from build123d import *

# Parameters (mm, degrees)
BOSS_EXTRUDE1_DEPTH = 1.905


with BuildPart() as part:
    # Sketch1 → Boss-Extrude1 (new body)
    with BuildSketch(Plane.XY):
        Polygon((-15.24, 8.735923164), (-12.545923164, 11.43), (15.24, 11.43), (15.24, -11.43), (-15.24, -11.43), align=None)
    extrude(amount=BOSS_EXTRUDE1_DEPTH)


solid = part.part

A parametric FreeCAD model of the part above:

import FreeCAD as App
import Part
import Sketcher

V = App.Vector
Q = App.Units.Quantity

doc = App.newDocument("Part")
body = doc.addObject("PartDesign::Body", "Body")

sketch1 = body.newObject("Sketcher::SketchObject", "Sketch")
sketch1.AttachmentSupport = (doc.getObject("XY_Plane"), [""])
sketch1.MapMode = "FlatFace"
sketch1.addGeometry(Part.LineSegment(V(-12.5, 11.4, 0), V(-15.2, 8.7, 0)), False)
sketch1.addGeometry(Part.LineSegment(V(-15.2, 8.7, 0), V(-15.2, -11.4, 0)), False)
sketch1.addGeometry(Part.LineSegment(V(-15.2, -11.4, 0), V(15.2, -11.4, 0)), False)
sketch1.addGeometry(Part.LineSegment(V(15.2, -11.4, 0), V(15.2, 11.4, 0)), False)
sketch1.addGeometry(Part.LineSegment(V(15.2, 11.4, 0), V(-12.5, 11.4, 0)), False)
sketch1.addConstraint(Sketcher.Constraint("Coincident", 0, 2, 1, 1))
sketch1.addConstraint(Sketcher.Constraint("Coincident", 1, 2, 2, 1))
sketch1.addConstraint(Sketcher.Constraint("Coincident", 2, 2, 3, 1))
sketch1.addConstraint(Sketcher.Constraint("Coincident", 3, 2, 4, 1))
sketch1.addConstraint(Sketcher.Constraint("Coincident", 4, 2, 0, 1))
sketch1.addConstraint(Sketcher.Constraint("Vertical", 1))
sketch1.addConstraint(Sketcher.Constraint("Horizontal", 2))
sketch1.addConstraint(Sketcher.Constraint("Vertical", 3))
sketch1.addConstraint(Sketcher.Constraint("Horizontal", 4))
sketch1.addConstraint(Sketcher.Constraint("Symmetric", 1, 2, 3, 2, -1, 1))
sketch1.addConstraint(Sketcher.Constraint("DistanceX", 2, 1, 2, 2, Q("1.2 in")))
sketch1.addConstraint(Sketcher.Constraint("DistanceY", 3, 1, 3, 2, Q("0.9 in")))
sketch1.addConstraint(Sketcher.Constraint("Angle", 0, Q("-135 deg")))
sketch1.addConstraint(Sketcher.Constraint("Distance", 0, Q("0.15 in")))
pad1 = body.newObject("PartDesign::Pad", "Pad")
pad1.Profile = sketch1
pad1.Length = Q("0.075 in")

doc.recompute()
